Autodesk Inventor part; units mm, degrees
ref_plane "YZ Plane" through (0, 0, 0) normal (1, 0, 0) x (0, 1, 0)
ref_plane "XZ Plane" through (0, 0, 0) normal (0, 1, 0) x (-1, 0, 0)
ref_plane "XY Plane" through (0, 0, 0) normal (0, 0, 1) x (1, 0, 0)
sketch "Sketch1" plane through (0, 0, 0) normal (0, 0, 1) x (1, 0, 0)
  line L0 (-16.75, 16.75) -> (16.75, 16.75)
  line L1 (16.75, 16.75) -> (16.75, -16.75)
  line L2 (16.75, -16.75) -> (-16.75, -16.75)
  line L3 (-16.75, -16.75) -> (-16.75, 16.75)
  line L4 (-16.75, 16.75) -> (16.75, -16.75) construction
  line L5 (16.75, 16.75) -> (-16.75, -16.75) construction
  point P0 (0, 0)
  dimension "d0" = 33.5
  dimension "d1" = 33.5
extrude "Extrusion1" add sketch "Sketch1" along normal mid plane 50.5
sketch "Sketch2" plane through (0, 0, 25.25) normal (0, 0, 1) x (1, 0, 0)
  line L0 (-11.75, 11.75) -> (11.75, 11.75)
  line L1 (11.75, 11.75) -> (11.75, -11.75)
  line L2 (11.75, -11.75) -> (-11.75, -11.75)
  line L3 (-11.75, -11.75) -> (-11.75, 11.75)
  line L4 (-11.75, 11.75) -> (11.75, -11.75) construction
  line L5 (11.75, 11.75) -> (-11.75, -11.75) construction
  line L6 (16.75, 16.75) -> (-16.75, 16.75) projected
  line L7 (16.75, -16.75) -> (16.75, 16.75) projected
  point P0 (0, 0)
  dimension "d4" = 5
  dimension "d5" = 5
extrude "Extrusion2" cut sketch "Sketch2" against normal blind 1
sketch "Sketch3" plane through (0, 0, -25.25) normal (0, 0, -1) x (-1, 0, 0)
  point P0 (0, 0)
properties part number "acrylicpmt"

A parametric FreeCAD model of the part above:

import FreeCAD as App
import Part
import Sketcher
Q = App.Units.Quantity

doc = App.newDocument("Part")
params = doc.addObject("Spreadsheet::Sheet", "Params")
for row, (alias, value) in enumerate([
    ("sketch1_width", "33.5 mm"),
    ("pad1_length", "50.5 mm"),
    ("sketch2_width", "23.5 mm"),
    ("pocket1_length", "1 mm"),
], start=1):
    params.set(f"A{row}", alias)
    params.set(f"B{row}", "=" + value)
    params.setAlias(f"B{row}", alias)

body = doc.addObject("PartDesign::Body", "Body")

# Sketch on XY plane
sketch1 = body.newObject("Sketcher::SketchObject", "Sketch")
sketch1.AttachmentSupport = (doc.getObject("XY_Plane"), [""])
sketch1.MapMode = "FlatFace"
sketch1.addGeometry([
    Part.LineSegment(App.Vector(17, 17, 0), App.Vector(-17, 17, 0)),
    Part.LineSegment(App.Vector(-17, 17, 0), App.Vector(-17, -17, 0)),
    Part.LineSegment(App.Vector(-17, -17, 0), App.Vector(17, -17, 0)),
    Part.LineSegment(App.Vector(17, -17, 0), App.Vector(17, 17, 0)),
], False)
sketch1.addConstraint([
    Sketcher.Constraint("Coincident", 0, 2, 1, 1),
    Sketcher.Constraint("Coincident", 1, 2, 2, 1),
    Sketcher.Constraint("Coincident", 2, 2, 3, 1),
    Sketcher.Constraint("Coincident", 3, 2, 0, 1),
    Sketcher.Constraint("Horizontal", 0),
    Sketcher.Constraint("Vertical", 1),
    Sketcher.Constraint("Horizontal", 2),
    Sketcher.Constraint("Vertical", 3),
    Sketcher.Constraint("Symmetric", 0, 2, 2, 2, -1, 1),
    Sketcher.Constraint("Equal", 2, 1),
    Sketcher.Constraint("DistanceX", 0, 2, 0, 1, Q("33.5 mm")),
])
sketch1.setExpression("Constraints[10]", "Params.sketch1_width")
pad1 = body.newObject("PartDesign::Pad", "Pad")
pad1.Profile = sketch1
pad1.setExpression("Length", "Params.pad1_length")
pad1.Midplane = True

# Sketch on XY plane
sketch2 = body.newObject("Sketcher::SketchObject", "Sketch001")
sketch2.AttachmentSupport = (doc.getObject("XY_Plane"), [""])
sketch2.MapMode = "FlatFace"
sketch2.AttachmentOffset = App.Placement(App.Vector(0, 0, 25.25), App.Rotation())
sketch2.addGeometry([
    Part.LineSegment(App.Vector(12, 12, 0), App.Vector(-12, 12, 0)),
    Part.LineSegment(App.Vector(-12, 12, 0), App.Vector(-12, -12, 0)),
    Part.LineSegment(App.Vector(-12, -12, 0), App.Vector(12, -12, 0)),
    Part.LineSegment(App.Vector(12, -12, 0), App.Vector(12, 12, 0)),
], False)
sketch2.addConstraint([
    Sketcher.Constraint("Coincident", 0, 2, 1, 1),
    Sketcher.Constraint("Coincident", 1, 2, 2, 1),
    Sketcher.Constraint("Coincident", 2, 2, 3, 1),
    Sketcher.Constraint("Coincident", 3, 2, 0, 1),
    Sketcher.Constraint("Horizontal", 0),
    Sketcher.Constraint("Vertical", 1),
    Sketcher.Constraint("Horizontal", 2),
    Sketcher.Constraint("Vertical", 3),
    Sketcher.Constraint("Symmetric", 0, 2, 2, 2, -1, 1),
    Sketcher.Constraint("Equal", 2, 1),
    Sketcher.Constraint("DistanceX", 0, 2, 0, 1, Q("23.5 mm")),
])
sketch2.setExpression("Constraints[10]", "Params.sketch2_width")
pocket1 = body.newObject("PartDesign::Pocket", "Pocket")
pocket1.Profile = sketch2
pocket1.setExpression("Length", "Params.pocket1_length")

doc.recompute()
